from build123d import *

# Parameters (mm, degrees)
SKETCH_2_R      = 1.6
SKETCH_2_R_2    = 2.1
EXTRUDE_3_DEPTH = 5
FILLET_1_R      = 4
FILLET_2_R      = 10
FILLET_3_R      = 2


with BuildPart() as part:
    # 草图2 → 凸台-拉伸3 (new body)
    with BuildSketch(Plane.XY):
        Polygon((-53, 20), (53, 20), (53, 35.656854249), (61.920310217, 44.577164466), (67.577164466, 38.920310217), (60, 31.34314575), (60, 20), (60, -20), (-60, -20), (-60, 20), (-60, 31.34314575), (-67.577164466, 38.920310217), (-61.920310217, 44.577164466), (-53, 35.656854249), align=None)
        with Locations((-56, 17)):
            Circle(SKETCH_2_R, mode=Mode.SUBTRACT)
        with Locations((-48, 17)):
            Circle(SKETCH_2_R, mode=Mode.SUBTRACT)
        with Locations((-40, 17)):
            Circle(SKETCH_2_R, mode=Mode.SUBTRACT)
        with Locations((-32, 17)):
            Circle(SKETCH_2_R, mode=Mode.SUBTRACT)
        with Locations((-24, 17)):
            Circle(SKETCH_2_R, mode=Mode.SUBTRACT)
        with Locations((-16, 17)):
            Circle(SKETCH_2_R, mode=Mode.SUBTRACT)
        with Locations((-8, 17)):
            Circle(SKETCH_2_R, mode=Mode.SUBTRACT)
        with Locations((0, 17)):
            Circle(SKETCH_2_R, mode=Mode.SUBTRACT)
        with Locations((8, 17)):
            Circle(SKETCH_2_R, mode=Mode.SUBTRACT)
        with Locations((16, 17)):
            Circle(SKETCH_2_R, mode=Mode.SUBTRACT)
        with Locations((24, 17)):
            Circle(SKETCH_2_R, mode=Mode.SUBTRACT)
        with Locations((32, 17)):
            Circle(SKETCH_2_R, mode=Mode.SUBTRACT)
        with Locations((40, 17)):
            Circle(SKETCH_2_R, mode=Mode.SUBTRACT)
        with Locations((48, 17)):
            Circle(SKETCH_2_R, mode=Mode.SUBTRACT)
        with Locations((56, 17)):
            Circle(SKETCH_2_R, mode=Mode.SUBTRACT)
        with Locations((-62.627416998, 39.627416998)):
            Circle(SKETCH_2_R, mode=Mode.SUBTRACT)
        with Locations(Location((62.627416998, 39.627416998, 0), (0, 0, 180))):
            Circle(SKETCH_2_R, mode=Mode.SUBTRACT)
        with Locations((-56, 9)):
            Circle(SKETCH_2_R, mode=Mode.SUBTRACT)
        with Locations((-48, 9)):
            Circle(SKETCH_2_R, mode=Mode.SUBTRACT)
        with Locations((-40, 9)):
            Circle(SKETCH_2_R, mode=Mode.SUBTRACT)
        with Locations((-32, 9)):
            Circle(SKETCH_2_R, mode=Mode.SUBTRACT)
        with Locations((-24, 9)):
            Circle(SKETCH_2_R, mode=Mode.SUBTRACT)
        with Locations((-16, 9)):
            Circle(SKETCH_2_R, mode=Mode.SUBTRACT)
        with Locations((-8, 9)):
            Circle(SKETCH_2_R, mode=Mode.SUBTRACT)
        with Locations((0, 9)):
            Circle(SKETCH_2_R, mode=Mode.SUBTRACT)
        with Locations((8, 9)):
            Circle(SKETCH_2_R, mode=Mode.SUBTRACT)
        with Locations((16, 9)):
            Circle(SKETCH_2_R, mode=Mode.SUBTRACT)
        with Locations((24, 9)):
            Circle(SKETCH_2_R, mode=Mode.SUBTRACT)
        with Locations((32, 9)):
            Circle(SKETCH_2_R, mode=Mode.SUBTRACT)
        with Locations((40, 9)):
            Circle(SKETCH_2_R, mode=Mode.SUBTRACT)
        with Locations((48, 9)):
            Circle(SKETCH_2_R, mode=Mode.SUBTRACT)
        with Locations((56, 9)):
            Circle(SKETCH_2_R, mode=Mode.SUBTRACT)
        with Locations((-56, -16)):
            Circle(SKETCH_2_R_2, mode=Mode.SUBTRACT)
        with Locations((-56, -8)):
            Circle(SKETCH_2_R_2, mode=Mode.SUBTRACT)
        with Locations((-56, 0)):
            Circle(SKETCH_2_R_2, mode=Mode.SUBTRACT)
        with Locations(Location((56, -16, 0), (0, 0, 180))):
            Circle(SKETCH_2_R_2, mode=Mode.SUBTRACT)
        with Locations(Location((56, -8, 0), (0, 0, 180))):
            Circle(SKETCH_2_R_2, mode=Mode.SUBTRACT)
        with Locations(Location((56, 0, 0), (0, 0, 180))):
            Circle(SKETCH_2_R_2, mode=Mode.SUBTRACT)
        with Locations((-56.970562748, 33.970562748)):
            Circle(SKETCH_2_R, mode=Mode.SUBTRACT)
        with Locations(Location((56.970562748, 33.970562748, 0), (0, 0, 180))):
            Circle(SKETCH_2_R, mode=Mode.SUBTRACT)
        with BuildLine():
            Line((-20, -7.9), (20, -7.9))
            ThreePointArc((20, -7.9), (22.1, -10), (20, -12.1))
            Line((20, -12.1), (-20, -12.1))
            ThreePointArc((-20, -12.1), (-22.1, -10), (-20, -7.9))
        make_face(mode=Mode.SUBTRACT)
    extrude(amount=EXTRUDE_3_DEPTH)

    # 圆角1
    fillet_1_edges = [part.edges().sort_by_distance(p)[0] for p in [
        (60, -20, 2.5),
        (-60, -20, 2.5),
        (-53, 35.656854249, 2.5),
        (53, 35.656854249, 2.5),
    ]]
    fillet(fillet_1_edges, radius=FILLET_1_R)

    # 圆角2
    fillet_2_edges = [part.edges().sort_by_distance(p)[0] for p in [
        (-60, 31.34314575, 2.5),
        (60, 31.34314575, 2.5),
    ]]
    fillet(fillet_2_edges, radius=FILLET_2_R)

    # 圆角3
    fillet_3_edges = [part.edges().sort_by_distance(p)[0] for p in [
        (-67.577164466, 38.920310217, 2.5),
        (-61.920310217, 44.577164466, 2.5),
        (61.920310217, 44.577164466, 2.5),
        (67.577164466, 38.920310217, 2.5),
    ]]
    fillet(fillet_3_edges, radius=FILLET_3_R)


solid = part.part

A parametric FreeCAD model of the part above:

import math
import FreeCAD as App
import Part
import Sketcher

V = App.Vector


def edges_at(feature, points):
    """Names of the edges that pass closest to the given points."""
    edges = feature.Shape.Edges
    near = lambda p: min(range(len(edges)), key=lambda i: edges[i].distToShape(Part.Vertex(*p))[0])
    return sorted({f"Edge{near(p) + 1}" for p in points})


def add_polygon(sketch, points):
    """Adds a closed chain of lines whose ends are joined by coincident constraints."""
    first, n = sketch.GeometryCount, len(points)
    for a, b in zip(points, points[1:] + points[:1]):
        sketch.addGeometry(Part.LineSegment(App.Vector(*a, 0), App.Vector(*b, 0)), False)
    for i in range(n):
        sketch.addConstraint(Sketcher.Constraint("Coincident", first + i, 2, first + (i + 1) % n, 1))

doc = App.newDocument("Part")
params = doc.addObject("Spreadsheet::Sheet", "Params")
for row, (alias, value) in enumerate([
    ("sketch1_diameter", "4.2 mm"),
    ("sketch1_diameter2", "3.2 mm"),
    ("sketch1_width", "106 mm"),
    ("sketch1_width2", "120 mm"),
    ("sketch1_width3", "40 mm"),
    ("pad1_length", "5 mm"),
    ("fillet_radius", "4 mm"),
    ("fillet2_radius", "10 mm"),
    ("fillet3_radius", "2 mm"),
], start=1):
    params.set(f"A{row}", alias)
    params.set(f"B{row}", "=" + value)
    params.setAlias(f"B{row}", alias)

body = doc.addObject("PartDesign::Body", "Body")

# Sketch on XY plane
sketch1 = body.newObject("Sketcher::SketchObject", "Sketch")
sketch1.AttachmentSupport = (doc.getObject("XY_Plane"), [""])
sketch1.MapMode = "FlatFace"
add_polygon(sketch1, [(53, 20), (-53, 20), (-53, 35.7), (-61.9, 44.6), (-67.6, 38.9), (-60, 31.3), (-60, -20), (60, -20), (60, 31.3), (67.6, 38.9), (61.9, 44.6), (53, 35.7)])  # lines 0-11
sketch1.addGeometry(Part.Circle(V(56, -16, 0), V(0, 0, 1), 2.1), False)  # 12
sketch1.addGeometry(Part.Circle(V(56, -8, 0), V(0, 0, 1), 2.1), False)  # 13
sketch1.addGeometry(Part.Circle(V(56, 0, 0), V(0, 0, 1), 2.1), False)  # 14
sketch1.addGeometry(Part.Circle(V(56, 9, 0), V(0, 0, 1), 1.6), False)  # 15
sketch1.addGeometry(Part.Circle(V(48, 9, 0), V(0, 0, 1), 1.6), False)  # 16
sketch1.addGeometry(Part.Circle(V(40, 9, 0), V(0, 0, 1), 1.6), False)  # 17
sketch1.addGeometry(Part.Circle(V(32, 9, 0), V(0, 0, 1), 1.6), False)  # 18
sketch1.addGeometry(Part.Circle(V(24, 9, 0), V(0, 0, 1), 1.6), False)  # 19
sketch1.addGeometry(Part.Circle(V(16, 9, 0), V(0, 0, 1), 1.6), False)  # 20
sketch1.addGeometry(Part.Circle(V(8, 9, 0), V(0, 0, 1), 1.6), False)  # 21
sketch1.addGeometry(Part.LineSegment(V(-20, -7.9, 0), V(20, -7.9, 0)), False)  # 22
sketch1.addGeometry(Part.ArcOfCircle(Part.Circle(V(20, -10, 0), V(0, 0, 1), 2.1), math.radians(-90), math.radians(90)), False)  # 23
sketch1.addGeometry(Part.LineSegment(V(20, -12.1, 0), V(-20, -12.1, 0)), False)  # 24
sketch1.addGeometry(Part.ArcOfCircle(Part.Circle(V(-20, -10, 0), V(0, 0, 1), 2.1), math.radians(90), math.radians(270)), False)  # 25
sketch1.addGeometry(Part.Circle(V(-56, -16, 0), V(0, 0, 1), 2.1), False)  # 26
sketch1.addGeometry(Part.Circle(V(-56, -8, 0), V(0, 0, 1), 2.1), False)  # 27
sketch1.addGeometry(Part.Circle(V(0, 9, 0), V(0, 0, 1), 1.6), False)  # 28
sketch1.addGeometry(Part.Circle(V(-8, 9, 0), V(0, 0, 1), 1.6), False)  # 29
sketch1.addGeometry(Part.Circle(V(-16, 9, 0), V(0, 0, 1), 1.6), False)  # 30
sketch1.addGeometry(Part.Circle(V(-24, 9, 0), V(0, 0, 1), 1.6), False)  # 31
sketch1.addGeometry(Part.Circle(V(-32, 9, 0), V(0, 0, 1), 1.6), False)  # 32
sketch1.addGeometry(Part.Circle(V(-56, 0, 0), V(0, 0, 1), 2.1), False)  # 33
sketch1.addGeometry(Part.Circle(V(-40, 9, 0), V(0, 0, 1), 1.6), False)  # 34
sketch1.addGeometry(Part.Circle(V(-48, 9, 0), V(0, 0, 1), 1.6), False)  # 35
sketch1.addGeometry(Part.Circle(V(-56, 9, 0), V(0, 0, 1), 1.6), False)  # 36
sketch1.addGeometry(Part.Circle(V(56, 17, 0), V(0, 0, 1), 1.6), False)  # 37
sketch1.addGeometry(Part.Circle(V(48, 17, 0), V(0, 0, 1), 1.6), False)  # 38
sketch1.addGeometry(Part.Circle(V(40, 17, 0), V(0, 0, 1), 1.6), False)  # 39
sketch1.addGeometry(Part.Circle(V(32, 17, 0), V(0, 0, 1), 1.6), False)  # 40
sketch1.addGeometry(Part.Circle(V(24, 17, 0), V(0, 0, 1), 1.6), False)  # 41
sketch1.addGeometry(Part.Circle(V(16, 17, 0), V(0, 0, 1), 1.6), False)  # 42
sketch1.addGeometry(Part.Circle(V(8, 17, 0), V(0, 0, 1), 1.6), False)  # 43
sketch1.addGeometry(Part.Circle(V(57, 34, 0), V(0, 0, 1), 1.6), False)  # 44
sketch1.addGeometry(Part.Circle(V(62.6, 39.6, 0), V(0, 0, 1), 1.6), False)  # 45
sketch1.addGeometry(Part.Circle(V(0, 17, 0), V(0, 0, 1), 1.6), False)  # 46
sketch1.addGeometry(Part.Circle(V(-8, 17, 0), V(0, 0, 1), 1.6), False)  # 47
sketch1.addGeometry(Part.Circle(V(-16, 17, 0), V(0, 0, 1), 1.6), False)  # 48
sketch1.addGeometry(Part.Circle(V(-24, 17, 0), V(0, 0, 1), 1.6), False)  # 49
sketch1.addGeometry(Part.Circle(V(-32, 17, 0), V(0, 0, 1), 1.6), False)  # 50
sketch1.addGeometry(Part.Circle(V(-40, 17, 0), V(0, 0, 1), 1.6), False)  # 51
sketch1.addGeometry(Part.Circle(V(-48, 17, 0), V(0, 0, 1), 1.6), False)  # 52
sketch1.addGeometry(Part.Circle(V(-56, 17, 0), V(0, 0, 1), 1.6), False)  # 53
sketch1.addGeometry(Part.Circle(V(-57, 34, 0), V(0, 0, 1), 1.6), False)  # 54
sketch1.addGeometry(Part.Circle(V(-62.6, 39.6, 0), V(0, 0, 1), 1.6), False)  # 55
sketch1.addConstraint([
    Sketcher.Constraint("Tangent", 22, 2, 23, 2),
    Sketcher.Constraint("Tangent", 23, 1, 24, 1),
    Sketcher.Constraint("Tangent", 24, 2, 25, 2),
    Sketcher.Constraint("Tangent", 25, 1, 22, 1),
    Sketcher.Constraint("Horizontal", 0),
    Sketcher.Constraint("Vertical", 1),
    Sketcher.Constraint("Vertical", 5),
    Sketcher.Constraint("Horizontal", 6),
    Sketcher.Constraint("Vertical", 7),
    Sketcher.Constraint("Vertical", 11),
    Sketcher.Constraint("Horizontal", 22),
    Sketcher.Constraint("Horizontal", 24),
    Sketcher.Constraint("Equal", 12, 13),
    Sketcher.Constraint("Equal", 13, 14),
    Sketcher.Constraint("Equal", 15, 16),
    Sketcher.Constraint("Equal", 16, 17),
    Sketcher.Constraint("Equal", 17, 18),
    Sketcher.Constraint("Equal", 18, 19),
    Sketcher.Constraint("Equal", 19, 20),
    Sketcher.Constraint("Equal", 20, 21),
    Sketcher.Constraint("Equal", 14, 23),
    Sketcher.Constraint("Equal", 25, 26),
    Sketcher.Constraint("Equal", 26, 27),
    Sketcher.Constraint("Equal", 21, 28),
    Sketcher.Constraint("Equal", 28, 29),
    Sketcher.Constraint("Equal", 29, 30),
    Sketcher.Constraint("Equal", 30, 31),
    Sketcher.Constraint("Equal", 31, 32),
    Sketcher.Constraint("Equal", 27, 33),
    Sketcher.Constraint("Equal", 32, 34),
    Sketcher.Constraint("Equal", 34, 35),
    Sketcher.Constraint("Equal", 35, 36),
    Sketcher.Constraint("Equal", 36, 37),
    Sketcher.Constraint("Equal", 37, 38),
    Sketcher.Constraint("Equal", 38, 39),
    Sketcher.Constraint("Equal", 39, 40),
    Sketcher.Constraint("Equal", 40, 41),
    Sketcher.Constraint("Equal", 41, 42),
    Sketcher.Constraint("Equal", 42, 43),
    Sketcher.Constraint("Equal", 43, 44),
    Sketcher.Constraint("Equal", 44, 45),
    Sketcher.Constraint("Equal", 45, 46),
    Sketcher.Constraint("Equal", 46, 47),
    Sketcher.Constraint("Equal", 47, 48),
    Sketcher.Constraint("Equal", 48, 49),
    Sketcher.Constraint("Equal", 49, 50),
    Sketcher.Constraint("Equal", 50, 51),
    Sketcher.Constraint("Equal", 51, 52),
    Sketcher.Constraint("Equal", 52, 53),
    Sketcher.Constraint("Equal", 53, 54),
    Sketcher.Constraint("Equal", 54, 55),
    Sketcher.Constraint("Symmetric", 14, 3, 33, 3, -1, 1),
    Sketcher.Constraint("Symmetric", 12, 3, 26, 3, -2),
    Sketcher.Constraint("Symmetric", 13, 3, 27, 3, -2),
    Sketcher.Constraint("Symmetric", 21, 3, 29, 3, -2),
    Sketcher.Constraint("Symmetric", 20, 3, 30, 3, -2),
    Sketcher.Constraint("Symmetric", 19, 3, 31, 3, -2),
    Sketcher.Constraint("Symmetric", 18, 3, 32, 3, -2),
    Sketcher.Constraint("Symmetric", 17, 3, 34, 3, -2),
    Sketcher.Constraint("Symmetric", 16, 3, 35, 3, -2),
    Sketcher.Constraint("Symmetric", 15, 3, 36, 3, -2),
    Sketcher.Constraint("Symmetric", 43, 3, 47, 3, -2),
    Sketcher.Constraint("Symmetric", 42, 3, 48, 3, -2),
    Sketcher.Constraint("Symmetric", 41, 3, 49, 3, -2),
    Sketcher.Constraint("Symmetric", 40, 3, 50, 3, -2),
    Sketcher.Constraint("Symmetric", 39, 3, 51, 3, -2),
    Sketcher.Constraint("Symmetric", 38, 3, 52, 3, -2),
    Sketcher.Constraint("Symmetric", 37, 3, 53, 3, -2),
    Sketcher.Constraint("Symmetric", 44, 3, 54, 3, -2),
    Sketcher.Constraint("Symmetric", 45, 3, 55, 3, -2),
    Sketcher.Constraint("Symmetric", 4, 2, 7, 2, -2),
    Sketcher.Constraint("Symmetric", 3, 2, 8, 2, -2),
    Sketcher.Constraint("Symmetric", 2, 2, 9, 2, -2),
    Sketcher.Constraint("Symmetric", 1, 2, 10, 2, -2),
    Sketcher.Constraint("PointOnObject", 14, 3, -1),
    Sketcher.Constraint("PointOnObject", 28, 3, -2),
    Sketcher.Constraint("PointOnObject", 46, 3, -2),
    Sketcher.Constraint("Perpendicular", 2, 3),
    Sketcher.Constraint("Perpendicular", 3, 4),
    Sketcher.Constraint("Perpendicular", 4, 8),
    Sketcher.Constraint("Horizontal", 15, 3, 16, 3),
    Sketcher.Constraint("Horizontal", 16, 3, 17, 3),
    Sketcher.Constraint("Horizontal", 17, 3, 18, 3),
    Sketcher.Constraint("Horizontal", 18, 3, 19, 3),
    Sketcher.Constraint("Horizontal", 19, 3, 20, 3),
    Sketcher.Constraint("Horizontal", 20, 3, 21, 3),
    Sketcher.Constraint("Horizontal", 21, 3, 28, 3),
    Sketcher.Constraint("Horizontal", 37, 3, 38, 3),
    Sketcher.Constraint("Horizontal", 38, 3, 39, 3),
    Sketcher.Constraint("Horizontal", 39, 3, 40, 3),
    Sketcher.Constraint("Horizontal", 40, 3, 41, 3),
    Sketcher.Constraint("Horizontal", 41, 3, 42, 3),
    Sketcher.Constraint("Horizontal", 42, 3, 43, 3),
    Sketcher.Constraint("Horizontal", 43, 3, 46, 3),
    Sketcher.Constraint("Vertical", 12, 3, 13, 3),
    Sketcher.Constraint("Vertical", 13, 3, 14, 3),
    Sketcher.Constraint("Vertical", 14, 3, 15, 3),
    Sketcher.Constraint("Vertical", 15, 3, 37, 3),
    Sketcher.Constraint("Vertical", 16, 3, 38, 3),
    Sketcher.Constraint("Vertical", 17, 3, 39, 3),
    Sketcher.Constraint("Vertical", 18, 3, 40, 3),
    Sketcher.Constraint("Vertical", 19, 3, 41, 3),
    Sketcher.Constraint("Vertical", 20, 3, 42, 3),
    Sketcher.Constraint("Vertical", 21, 3, 43, 3),
    Sketcher.Constraint("Diameter", 12, 4.2),
    Sketcher.Constraint("Diameter", 15, 3.2),
    Sketcher.Constraint("DistanceX", 0, 2, 0, 1, 106.0),
    Sketcher.Constraint("DistanceX", 6, 1, 6, 2, 120.0),
    Sketcher.Constraint("DistanceX", 22, 1, 22, 2, 40.0),
    Sketcher.Constraint("Distance", 3, 8.0),
    Sketcher.Constraint("DistanceX", -1, 1, 12, 3, 56.0),
    Sketcher.Constraint("DistanceY", 12, 3, -1, 1, 16.0),
    Sketcher.Constraint("DistanceY", 13, 3, -1, 1, 8.0),
    Sketcher.Constraint("DistanceY", -1, 1, 15, 3, 9.0),
    Sketcher.Constraint("DistanceX", -1, 1, 16, 3, 48.0),
    Sketcher.Constraint("DistanceX", -1, 1, 17, 3, 40.0),
    Sketcher.Constraint("DistanceX", -1, 1, 18, 3, 32.0),
    Sketcher.Constraint("DistanceX", -1, 1, 19, 3, 24.0),
    Sketcher.Constraint("DistanceX", -1, 1, 20, 3, 16.0),
    Sketcher.Constraint("DistanceX", -1, 1, 21, 3, 8.0),
    Sketcher.Constraint("DistanceX", -1, 1, 23, 3, 20.0),
    Sketcher.Constraint("DistanceY", 23, 3, -1, 1, 10.0),
    Sketcher.Constraint("DistanceY", -1, 1, 37, 3, 17.0),
    Sketcher.Constraint("DistanceY", -1, 1, 0, 2, 20.0),
    Sketcher.Constraint("DistanceY", 5, 2, -1, 1, 20.0),
    Sketcher.Constraint("DistanceY", 54, 3, 2, 2, 10.606602),
    Sketcher.Constraint("DistanceX", 3, 2, 54, 3, 10.606602),
    Sketcher.Constraint("Distance", 4, 10.715729),
    Sketcher.Constraint("DistanceY", 1, 1, 1, 2, 15.656854),
    Sketcher.Constraint("DistanceY", 4, 2, 55, 3, 8.284271),
    Sketcher.Constraint("DistanceX", -1, 1, 45, 3, 62.627417),
])
sketch1.setExpression("Constraints[116]", "Params.sketch1_diameter")
sketch1.setExpression("Constraints[117]", "Params.sketch1_diameter2")
sketch1.setExpression("Constraints[118]", "Params.sketch1_width")
sketch1.setExpression("Constraints[119]", "Params.sketch1_width2")
sketch1.setExpression("Constraints[120]", "Params.sketch1_width3")
pad1 = body.newObject("PartDesign::Pad", "Pad")
pad1.Profile = sketch1
pad1.setExpression("Length", "Params.pad1_length")
doc.recompute()

fillet = body.newObject("PartDesign::Fillet", "Fillet")
fillet.Base = (pad1, edges_at(pad1, [
    (60, -20, 2.5),
    (-60, -20, 2.5),
    (-53, 35.657, 2.5),
    (53, 35.657, 2.5),
]))
fillet.setExpression("Radius", "Params.fillet_radius")
doc.recompute()

fillet2 = body.newObject("PartDesign::Fillet", "Fillet001")
fillet2.Base = (fillet, edges_at(fillet, [(-60, 31.343, 2.5), (60, 31.343, 2.5)]))
fillet2.setExpression("Radius", "Params.fillet2_radius")
doc.recompute()

fillet3 = body.newObject("PartDesign::Fillet", "Fillet002")
fillet3.Base = (fillet2, edges_at(fillet2, [
    (-67.577, 38.92, 2.5),
    (-61.92, 44.577, 2.5),
    (61.92, 44.577, 2.5),
    (67.577, 38.92, 2.5),
]))
fillet3.setExpression("Radius", "Params.fillet3_radius")

doc.recompute()
